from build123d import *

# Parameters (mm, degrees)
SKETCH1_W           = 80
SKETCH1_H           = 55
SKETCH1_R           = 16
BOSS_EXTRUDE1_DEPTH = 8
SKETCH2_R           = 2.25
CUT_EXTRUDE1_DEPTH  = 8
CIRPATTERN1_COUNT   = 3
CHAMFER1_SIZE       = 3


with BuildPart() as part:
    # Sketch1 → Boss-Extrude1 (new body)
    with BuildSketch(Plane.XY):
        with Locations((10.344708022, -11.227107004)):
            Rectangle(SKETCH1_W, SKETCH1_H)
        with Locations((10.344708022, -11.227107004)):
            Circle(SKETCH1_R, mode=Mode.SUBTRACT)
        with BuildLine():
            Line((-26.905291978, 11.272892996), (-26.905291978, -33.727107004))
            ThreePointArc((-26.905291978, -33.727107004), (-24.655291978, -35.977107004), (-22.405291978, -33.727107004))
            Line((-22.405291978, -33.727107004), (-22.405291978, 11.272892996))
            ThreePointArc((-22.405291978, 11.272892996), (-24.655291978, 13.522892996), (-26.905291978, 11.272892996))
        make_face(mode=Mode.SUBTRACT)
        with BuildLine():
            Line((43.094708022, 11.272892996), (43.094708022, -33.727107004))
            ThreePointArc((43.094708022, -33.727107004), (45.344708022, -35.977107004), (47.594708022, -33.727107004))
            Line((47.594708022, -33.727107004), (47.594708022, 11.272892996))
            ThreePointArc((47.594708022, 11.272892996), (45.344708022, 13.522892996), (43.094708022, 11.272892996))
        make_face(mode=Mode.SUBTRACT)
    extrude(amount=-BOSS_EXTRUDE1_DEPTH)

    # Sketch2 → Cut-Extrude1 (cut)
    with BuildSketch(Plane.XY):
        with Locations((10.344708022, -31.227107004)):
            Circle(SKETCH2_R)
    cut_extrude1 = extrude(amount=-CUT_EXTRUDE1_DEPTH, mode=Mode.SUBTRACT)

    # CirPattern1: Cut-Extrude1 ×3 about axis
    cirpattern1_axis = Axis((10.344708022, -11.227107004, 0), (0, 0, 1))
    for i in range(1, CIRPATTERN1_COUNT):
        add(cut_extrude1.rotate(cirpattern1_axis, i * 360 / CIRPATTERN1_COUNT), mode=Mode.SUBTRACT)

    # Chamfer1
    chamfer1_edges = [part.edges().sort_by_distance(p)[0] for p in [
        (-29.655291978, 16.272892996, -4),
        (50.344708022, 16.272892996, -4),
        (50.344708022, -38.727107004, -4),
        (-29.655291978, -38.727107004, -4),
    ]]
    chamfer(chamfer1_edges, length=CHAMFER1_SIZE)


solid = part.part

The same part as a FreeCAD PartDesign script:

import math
import FreeCAD as App
import Part
import Sketcher

V = App.Vector


def edges_at(feature, points):
    """Names of the edges that pass closest to the given points."""
    edges = feature.Shape.Edges
    near = lambda p: min(range(len(edges)), key=lambda i: edges[i].distToShape(Part.Vertex(*p))[0])
    return sorted({f"Edge{near(p) + 1}" for p in points})


def add_polygon(sketch, points):
    """Adds a closed chain of lines whose ends are joined by coincident constraints."""
    first, n = sketch.GeometryCount, len(points)
    for a, b in zip(points, points[1:] + points[:1]):
        sketch.addGeometry(Part.LineSegment(App.Vector(*a, 0), App.Vector(*b, 0)), False)
    for i in range(n):
        sketch.addConstraint(Sketcher.Constraint("Coincident", first + i, 2, first + (i + 1) % n, 1))

doc = App.newDocument("Part")
params = doc.addObject("Spreadsheet::Sheet", "Params")
for row, (alias, value) in enumerate([
    ("sketch1_diameter", "32 mm"),
    ("sketch1_width", "80 mm"),
    ("sketch1_height", "55 mm"),
    ("sketch1_height2", "45 mm"),
    ("sketch1_radius", "2.25 mm"),
    ("pad1_length", "8 mm"),
    ("sketch2_diameter", "4.5 mm"),
    ("pocket1_length", "8 mm"),
    ("chamfer_size", "3 mm"),
], start=1):
    params.set(f"A{row}", alias)
    params.set(f"B{row}", "=" + value)
    params.setAlias(f"B{row}", alias)

body = doc.addObject("PartDesign::Body", "Body")

sketch1 = body.newObject("Sketcher::SketchObject", "Sketch")
sketch1.AttachmentSupport = (doc.getObject("XY_Plane"), [""])
sketch1.MapMode = "FlatFace"
add_polygon(sketch1, [(-29.7, 16.3), (-29.7, -38.7), (50.3, -38.7), (50.3, 16.3)])
sketch1.addGeometry(Part.Circle(V(10.3, -11.2, 0), V(0, 0, 1), 16), False)
sketch1.addGeometry(Part.LineSegment(V(-26.9, -33.7, 0), V(-26.9, 11.3, 0)), False)
sketch1.addGeometry(Part.ArcOfCircle(Part.Circle(V(-24.7, 11.3, 0), V(0, 0, 1), 2.2), math.radians(0), math.radians(180)), False)
sketch1.addGeometry(Part.LineSegment(V(-22.4, 11.3, 0), V(-22.4, -33.7, 0)), False)
sketch1.addGeometry(Part.ArcOfCircle(Part.Circle(V(-24.7, -33.7, 0), V(0, 0, 1), 2.2), math.radians(180), math.radians(360)), False)
sketch1.addGeometry(Part.LineSegment(V(43.1, -33.7, 0), V(43.1, 11.3, 0)), False)
sketch1.addGeometry(Part.ArcOfCircle(Part.Circle(V(45.3, 11.3, 0), V(0, 0, 1), 2.2), math.radians(0), math.radians(180)), False)
sketch1.addGeometry(Part.LineSegment(V(47.6, 11.3, 0), V(47.6, -33.7, 0)), False)
sketch1.addGeometry(Part.ArcOfCircle(Part.Circle(V(45.3, -33.7, 0), V(0, 0, 1), 2.2), math.radians(180), math.radians(360)), False)
sketch1.addConstraint([
    Sketcher.Constraint("Tangent", 5, 2, 6, 2),
    Sketcher.Constraint("Tangent", 6, 1, 7, 1),
    Sketcher.Constraint("Tangent", 7, 2, 8, 2),
    Sketcher.Constraint("Tangent", 8, 1, 5, 1),
    Sketcher.Constraint("Tangent", 9, 2, 10, 2),
    Sketcher.Constraint("Tangent", 10, 1, 11, 1),
    Sketcher.Constraint("Tangent", 11, 2, 12, 2),
    Sketcher.Constraint("Tangent", 12, 1, 9, 1),
    Sketcher.Constraint("Vertical", 0),
    Sketcher.Constraint("Horizontal", 1),
    Sketcher.Constraint("Vertical", 2),
    Sketcher.Constraint("Horizontal", 3),
    Sketcher.Constraint("Vertical", 5),
    Sketcher.Constraint("Vertical", 7),
    Sketcher.Constraint("Vertical", 9),
    Sketcher.Constraint("Vertical", 11),
    Sketcher.Constraint("Equal", 8, 10),
    Sketcher.Constraint("Horizontal", 6, 3, 10, 3),
    Sketcher.Constraint("Horizontal", 8, 3, 12, 3),
    Sketcher.Constraint("Diameter", 4, 32.0),
    Sketcher.Constraint("DistanceX", 1, 1, 1, 2, 80.0),
    Sketcher.Constraint("DistanceY", 0, 2, 0, 1, 55.0),
    Sketcher.Constraint("DistanceY", 5, 1, 5, 2, 45.0),
    Sketcher.Constraint("Radius", 6, 2.25),
    Sketcher.Constraint("DistanceX", 6, 3, 4, 3, 35.0),
    Sketcher.Constraint("DistanceX", 4, 3, 10, 3, 35.0),
    Sketcher.Constraint("DistanceX", 0, 2, 8, 3, 5.0),
    Sketcher.Constraint("DistanceY", 0, 2, 8, 3, 5.0),
    Sketcher.Constraint("DistanceY", 4, 3, 6, 3, 22.5),
    Sketcher.Constraint("DistanceX", -1, 1, 4, 3, 10.344708),
    Sketcher.Constraint("DistanceY", 4, 3, -1, 1, 11.227107),
])
sketch1.setExpression("Constraints[23]", "Params.sketch1_diameter")
sketch1.setExpression("Constraints[24]", "Params.sketch1_width")
sketch1.setExpression("Constraints[25]", "Params.sketch1_height")
sketch1.setExpression("Constraints[26]", "Params.sketch1_height2")
sketch1.setExpression("Constraints[27]", "Params.sketch1_radius")
pad1 = body.newObject("PartDesign::Pad", "Pad")
pad1.Profile = sketch1
pad1.setExpression("Length", "Params.pad1_length")
pad1.Reversed = True

sketch2 = body.newObject("Sketcher::SketchObject", "Sketch001")
sketch2.AttachmentSupport = (doc.getObject("XY_Plane"), [""])
sketch2.MapMode = "FlatFace"
sketch2.addGeometry(Part.Circle(V(10.3, -31.2, 0), V(0, 0, 1), 2.2), False)
sketch2.addConstraint([
    Sketcher.Constraint("Diameter", 0, 4.5),
    Sketcher.Constraint("DistanceX", -1, 1, 0, 3, 10.344708),
    Sketcher.Constraint("DistanceY", 0, 3, -1, 1, 31.227107),
])
sketch2.setExpression("Constraints[0]", "Params.sketch2_diameter")
pocket1 = body.newObject("PartDesign::Pocket", "Pocket")
pocket1.Profile = sketch2
pocket1.setExpression("Length", "Params.pocket1_length")
doc.recompute()

datumline = body.newObject("PartDesign::Line", "DatumLine")
datumline.Placement = App.Placement(V(10.344708, -11.227107, 0), App.Rotation(V(0, 0, 1), V(0, 0, 1)))
polarpattern = body.newObject("PartDesign::PolarPattern", "PolarPattern")
polarpattern.Originals = [pocket1]
polarpattern.Axis = (datumline, [""])
polarpattern.Angle = 360
polarpattern.Occurrences = 3
body.Tip = polarpattern
doc.recompute()

chamfer = body.newObject("PartDesign::Chamfer", "Chamfer")
chamfer.Base = (polarpattern, edges_at(polarpattern, [
    (-29.655, 16.273, -4),
    (50.345, 16.273, -4),
    (50.345, -38.727, -4),
    (-29.655, -38.727, -4),
]))
chamfer.setExpression("Size", "Params.chamfer_size")

doc.recompute()
